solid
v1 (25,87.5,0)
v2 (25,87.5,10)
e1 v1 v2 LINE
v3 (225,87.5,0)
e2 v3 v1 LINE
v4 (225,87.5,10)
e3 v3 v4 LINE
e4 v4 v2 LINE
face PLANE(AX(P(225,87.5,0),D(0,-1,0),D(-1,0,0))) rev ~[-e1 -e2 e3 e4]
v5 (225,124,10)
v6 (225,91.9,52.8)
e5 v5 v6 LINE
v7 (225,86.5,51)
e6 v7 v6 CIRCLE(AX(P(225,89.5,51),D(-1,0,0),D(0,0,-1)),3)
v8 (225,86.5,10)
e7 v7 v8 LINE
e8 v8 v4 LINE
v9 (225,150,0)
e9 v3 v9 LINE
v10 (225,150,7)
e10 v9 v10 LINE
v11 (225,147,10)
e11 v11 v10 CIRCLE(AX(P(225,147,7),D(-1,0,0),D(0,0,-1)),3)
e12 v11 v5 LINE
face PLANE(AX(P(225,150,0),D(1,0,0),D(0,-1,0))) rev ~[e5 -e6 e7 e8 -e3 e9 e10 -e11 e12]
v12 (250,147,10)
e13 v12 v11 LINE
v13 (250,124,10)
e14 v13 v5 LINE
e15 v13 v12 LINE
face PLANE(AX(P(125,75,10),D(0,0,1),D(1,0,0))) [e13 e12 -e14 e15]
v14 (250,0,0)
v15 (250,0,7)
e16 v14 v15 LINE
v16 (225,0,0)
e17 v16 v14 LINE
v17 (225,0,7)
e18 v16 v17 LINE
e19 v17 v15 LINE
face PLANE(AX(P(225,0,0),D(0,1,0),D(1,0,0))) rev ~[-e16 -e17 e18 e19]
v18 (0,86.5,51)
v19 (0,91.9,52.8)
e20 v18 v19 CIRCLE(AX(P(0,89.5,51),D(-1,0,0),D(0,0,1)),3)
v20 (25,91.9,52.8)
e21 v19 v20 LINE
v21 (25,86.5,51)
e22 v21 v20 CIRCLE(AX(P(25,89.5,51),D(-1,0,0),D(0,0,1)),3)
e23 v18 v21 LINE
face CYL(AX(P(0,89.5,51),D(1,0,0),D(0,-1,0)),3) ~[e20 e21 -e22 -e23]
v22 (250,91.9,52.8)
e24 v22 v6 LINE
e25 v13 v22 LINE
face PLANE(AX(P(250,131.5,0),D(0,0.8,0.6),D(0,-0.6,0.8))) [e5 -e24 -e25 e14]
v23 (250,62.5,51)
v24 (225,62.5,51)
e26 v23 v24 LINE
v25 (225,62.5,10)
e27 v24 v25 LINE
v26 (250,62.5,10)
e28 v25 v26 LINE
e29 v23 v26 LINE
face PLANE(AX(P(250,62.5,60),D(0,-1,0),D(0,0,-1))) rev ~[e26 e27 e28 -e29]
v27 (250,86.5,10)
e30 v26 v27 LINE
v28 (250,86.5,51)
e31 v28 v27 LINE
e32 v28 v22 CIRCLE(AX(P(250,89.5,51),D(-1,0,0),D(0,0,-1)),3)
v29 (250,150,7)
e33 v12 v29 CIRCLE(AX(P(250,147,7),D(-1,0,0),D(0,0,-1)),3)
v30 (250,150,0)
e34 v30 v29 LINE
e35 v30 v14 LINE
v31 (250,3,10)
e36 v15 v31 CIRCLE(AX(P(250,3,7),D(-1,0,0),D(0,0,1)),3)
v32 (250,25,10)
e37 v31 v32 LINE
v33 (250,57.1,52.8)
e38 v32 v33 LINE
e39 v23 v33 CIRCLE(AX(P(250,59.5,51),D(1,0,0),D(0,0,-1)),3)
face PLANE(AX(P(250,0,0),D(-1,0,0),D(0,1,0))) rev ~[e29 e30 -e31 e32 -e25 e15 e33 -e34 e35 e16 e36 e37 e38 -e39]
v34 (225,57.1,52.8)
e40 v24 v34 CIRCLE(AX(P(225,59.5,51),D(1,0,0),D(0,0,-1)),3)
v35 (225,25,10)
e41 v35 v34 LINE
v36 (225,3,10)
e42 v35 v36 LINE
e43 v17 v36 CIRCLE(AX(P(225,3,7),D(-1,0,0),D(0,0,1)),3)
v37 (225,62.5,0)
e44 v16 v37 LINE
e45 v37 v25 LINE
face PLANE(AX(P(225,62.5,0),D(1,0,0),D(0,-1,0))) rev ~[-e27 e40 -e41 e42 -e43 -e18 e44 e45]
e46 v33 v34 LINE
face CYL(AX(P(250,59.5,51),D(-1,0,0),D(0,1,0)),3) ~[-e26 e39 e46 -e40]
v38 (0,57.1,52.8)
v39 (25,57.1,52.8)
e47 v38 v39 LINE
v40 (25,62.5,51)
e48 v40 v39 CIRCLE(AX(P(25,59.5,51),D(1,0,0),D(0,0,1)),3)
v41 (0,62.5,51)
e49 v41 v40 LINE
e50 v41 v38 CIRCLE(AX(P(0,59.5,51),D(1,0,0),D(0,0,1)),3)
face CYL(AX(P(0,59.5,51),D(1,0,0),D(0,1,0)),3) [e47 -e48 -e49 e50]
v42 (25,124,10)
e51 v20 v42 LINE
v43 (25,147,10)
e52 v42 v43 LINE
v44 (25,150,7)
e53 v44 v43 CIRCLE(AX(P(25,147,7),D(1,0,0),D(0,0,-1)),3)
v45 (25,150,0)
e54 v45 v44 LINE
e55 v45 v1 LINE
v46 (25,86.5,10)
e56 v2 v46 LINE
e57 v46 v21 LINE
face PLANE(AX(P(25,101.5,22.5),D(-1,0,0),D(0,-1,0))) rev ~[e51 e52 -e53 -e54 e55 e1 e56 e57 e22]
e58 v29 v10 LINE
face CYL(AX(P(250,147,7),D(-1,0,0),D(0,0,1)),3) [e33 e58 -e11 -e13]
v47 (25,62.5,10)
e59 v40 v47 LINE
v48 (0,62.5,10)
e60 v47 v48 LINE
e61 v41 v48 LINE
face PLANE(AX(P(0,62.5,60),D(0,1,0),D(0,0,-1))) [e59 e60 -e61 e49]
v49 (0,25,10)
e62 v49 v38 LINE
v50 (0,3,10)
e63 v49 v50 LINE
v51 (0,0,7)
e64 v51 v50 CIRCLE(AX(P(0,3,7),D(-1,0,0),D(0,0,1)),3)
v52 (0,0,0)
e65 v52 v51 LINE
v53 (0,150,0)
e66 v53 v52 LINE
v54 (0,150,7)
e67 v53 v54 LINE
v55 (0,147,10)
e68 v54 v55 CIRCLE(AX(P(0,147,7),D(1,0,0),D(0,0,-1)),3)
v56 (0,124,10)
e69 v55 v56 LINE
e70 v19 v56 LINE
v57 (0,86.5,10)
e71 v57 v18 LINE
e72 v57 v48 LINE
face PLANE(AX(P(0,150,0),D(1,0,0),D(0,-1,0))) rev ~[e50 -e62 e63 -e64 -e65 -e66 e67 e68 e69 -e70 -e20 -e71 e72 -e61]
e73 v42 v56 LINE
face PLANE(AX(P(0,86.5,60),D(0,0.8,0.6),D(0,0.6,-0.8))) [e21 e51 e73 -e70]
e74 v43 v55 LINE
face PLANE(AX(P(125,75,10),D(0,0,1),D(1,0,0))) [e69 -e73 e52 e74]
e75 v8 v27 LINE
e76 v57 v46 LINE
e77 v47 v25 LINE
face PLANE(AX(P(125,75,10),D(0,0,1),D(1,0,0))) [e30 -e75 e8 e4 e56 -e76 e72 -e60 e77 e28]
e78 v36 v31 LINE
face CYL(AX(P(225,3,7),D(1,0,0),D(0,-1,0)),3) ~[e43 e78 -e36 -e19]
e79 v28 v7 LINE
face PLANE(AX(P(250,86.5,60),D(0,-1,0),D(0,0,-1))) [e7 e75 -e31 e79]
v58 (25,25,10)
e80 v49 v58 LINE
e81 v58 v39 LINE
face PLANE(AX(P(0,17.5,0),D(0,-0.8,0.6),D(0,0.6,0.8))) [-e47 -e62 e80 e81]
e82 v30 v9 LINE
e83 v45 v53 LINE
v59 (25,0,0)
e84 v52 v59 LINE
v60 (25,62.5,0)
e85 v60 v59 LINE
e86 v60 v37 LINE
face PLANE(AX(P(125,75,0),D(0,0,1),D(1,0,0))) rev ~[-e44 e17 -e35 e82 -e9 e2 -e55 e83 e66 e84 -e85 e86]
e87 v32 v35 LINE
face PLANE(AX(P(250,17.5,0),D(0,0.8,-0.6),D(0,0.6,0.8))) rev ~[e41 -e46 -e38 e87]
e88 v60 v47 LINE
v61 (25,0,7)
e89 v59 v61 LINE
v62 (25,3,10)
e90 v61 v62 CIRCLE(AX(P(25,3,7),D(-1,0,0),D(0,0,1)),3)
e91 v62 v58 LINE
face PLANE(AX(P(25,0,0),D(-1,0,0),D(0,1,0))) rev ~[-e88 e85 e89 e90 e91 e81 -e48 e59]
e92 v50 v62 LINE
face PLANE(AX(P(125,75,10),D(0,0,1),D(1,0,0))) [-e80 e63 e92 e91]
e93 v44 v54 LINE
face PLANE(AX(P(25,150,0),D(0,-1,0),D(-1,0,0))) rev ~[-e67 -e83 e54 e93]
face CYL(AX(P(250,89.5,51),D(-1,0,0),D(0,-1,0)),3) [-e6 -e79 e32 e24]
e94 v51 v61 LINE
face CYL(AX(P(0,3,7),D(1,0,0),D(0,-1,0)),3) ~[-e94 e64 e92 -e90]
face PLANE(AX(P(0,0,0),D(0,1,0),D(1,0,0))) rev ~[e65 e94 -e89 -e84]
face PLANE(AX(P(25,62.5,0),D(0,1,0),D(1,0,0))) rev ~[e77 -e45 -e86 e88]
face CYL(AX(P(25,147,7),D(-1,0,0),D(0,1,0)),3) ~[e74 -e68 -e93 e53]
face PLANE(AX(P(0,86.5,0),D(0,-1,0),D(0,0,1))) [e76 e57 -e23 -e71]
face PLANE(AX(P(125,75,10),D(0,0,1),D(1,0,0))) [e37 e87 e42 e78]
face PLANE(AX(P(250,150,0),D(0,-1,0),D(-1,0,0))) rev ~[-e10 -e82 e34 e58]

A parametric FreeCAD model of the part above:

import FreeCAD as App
import Part
import Sketcher
Q = App.Units.Quantity


def edges_at(feature, points):
    """Names of the edges that pass closest to the given points."""
    edges = feature.Shape.Edges
    near = lambda p: min(range(len(edges)), key=lambda i: edges[i].distToShape(Part.Vertex(*p))[0])
    return sorted({f"Edge{near(p) + 1}" for p in points})

doc = App.newDocument("Part")
body = doc.addObject("PartDesign::Body", "Body")

sketch1 = doc.addObject("Sketcher::SketchObject", "Sketch")
body.addObject(sketch1)
sketch1.AttachmentSupport = (doc.XY_Plane, [""])
sketch1.MapMode = "FlatFace"
sketch1.addGeometry([
    Part.LineSegment(App.Vector(0, 0, 0), App.Vector(25, 0, 0)),
    Part.LineSegment(App.Vector(25, 0, 0), App.Vector(25, 62.5, 0)),
    Part.LineSegment(App.Vector(25, 62.5, 0), App.Vector(225, 62.5, 0)),
    Part.LineSegment(App.Vector(225, 62.5, 0), App.Vector(225, 0, 0)),
    Part.LineSegment(App.Vector(225, 0, 0), App.Vector(250, 0, 0)),
    Part.LineSegment(App.Vector(250, 0, 0), App.Vector(250, 150, 0)),
    Part.LineSegment(App.Vector(250, 150, 0), App.Vector(225, 150, 0)),
    Part.LineSegment(App.Vector(225, 150, 0), App.Vector(225, 87.5, 0)),
    Part.LineSegment(App.Vector(225, 87.5, 0), App.Vector(25, 87.5, 0)),
    Part.LineSegment(App.Vector(25, 87.5, 0), App.Vector(25, 150, 0)),
    Part.LineSegment(App.Vector(25, 150, 0), App.Vector(0, 150, 0)),
    Part.LineSegment(App.Vector(0, 150, 0), App.Vector(0, 0, 0)),
], False)
sketch1.addConstraint([
    Sketcher.Constraint("Coincident", 0, 2, 1, 1),
    Sketcher.Constraint("Coincident", 1, 2, 2, 1),
    Sketcher.Constraint("Coincident", 2, 2, 3, 1),
    Sketcher.Constraint("Coincident", 3, 2, 4, 1),
    Sketcher.Constraint("Coincident", 4, 2, 5, 1),
    Sketcher.Constraint("Coincident", 5, 2, 6, 1),
    Sketcher.Constraint("Coincident", 6, 2, 7, 1),
    Sketcher.Constraint("Coincident", 7, 2, 8, 1),
    Sketcher.Constraint("Coincident", 8, 2, 9, 1),
    Sketcher.Constraint("Coincident", 9, 2, 10, 1),
    Sketcher.Constraint("Coincident", 10, 2, 11, 1),
    Sketcher.Constraint("Coincident", 11, 2, 0, 1),
    Sketcher.Constraint("Horizontal", 0),
    Sketcher.Constraint("Vertical", 1),
    Sketcher.Constraint("Horizontal", 2),
    Sketcher.Constraint("Vertical", 3),
    Sketcher.Constraint("Horizontal", 4),
    Sketcher.Constraint("Vertical", 5),
    Sketcher.Constraint("Horizontal", 6),
    Sketcher.Constraint("Vertical", 7),
    Sketcher.Constraint("Horizontal", 8),
    Sketcher.Constraint("Vertical", 9),
    Sketcher.Constraint("Horizontal", 10),
    Sketcher.Constraint("Vertical", 11),
    Sketcher.Constraint("Coincident", 11, 2, -1, 1),
    Sketcher.Constraint("PointOnObject", 3, 2, -1),
    Sketcher.Constraint("Horizontal", 6, 2, 9, 2),
    Sketcher.Constraint("Vertical", 3, 2, 6, 2),
    Sketcher.Constraint("Vertical", 1, 2, 8, 2),
    Sketcher.Constraint("Equal", 0, 4),
    Sketcher.Constraint("Equal", 3, 7),
    Sketcher.Constraint("DistanceX", 0, 1, 0, 2, Q("25 mm")),
    Sketcher.Constraint("DistanceX", 2, 1, 2, 2, Q("200 mm")),
    Sketcher.Constraint("DistanceY", 5, 1, 5, 2, Q("150 mm")),
    Sketcher.Constraint("DistanceY", 1, 1, 1, 2, Q("62.5 mm")),
])
pad1 = doc.addObject("PartDesign::Pad", "Pad")
body.addObject(pad1)
pad1.Profile = sketch1
pad1.Length = 10

sketch2 = doc.addObject("Sketcher::SketchObject", "Sketch001")
body.addObject(sketch2)
sketch2.AttachmentSupport = (doc.YZ_Plane, [""])
sketch2.MapMode = "FlatFace"
sketch2.addGeometry([
    Part.LineSegment(App.Vector(62.5, 60, 0), App.Vector(17.5, 0, 0)),
    Part.LineSegment(App.Vector(17.5, 0, 0), App.Vector(62.5, 0, 0)),
    Part.LineSegment(App.Vector(62.5, 0, 0), App.Vector(62.5, 60, 0)),
    Part.LineSegment(App.Vector(86.5, 60, 0), App.Vector(86.5, 0, 0)),
    Part.LineSegment(App.Vector(86.5, 0, 0), App.Vector(131.5, 0, 0)),
    Part.LineSegment(App.Vector(131.5, 0, 0), App.Vector(86.5, 60, 0)),
], False)
sketch2.addConstraint([
    Sketcher.Constraint("Coincident", 0, 2, 1, 1),
    Sketcher.Constraint("Coincident", 1, 2, 2, 1),
    Sketcher.Constraint("Coincident", 2, 2, 0, 1),
    Sketcher.Constraint("Coincident", 3, 2, 4, 1),
    Sketcher.Constraint("Coincident", 4, 2, 5, 1),
    Sketcher.Constraint("Coincident", 5, 2, 3, 1),
    Sketcher.Constraint("Horizontal", 1),
    Sketcher.Constraint("Vertical", 2),
    Sketcher.Constraint("Vertical", 3),
    Sketcher.Constraint("Horizontal", 4),
    Sketcher.Constraint("PointOnObject", 0, 2, -1),
    Sketcher.Constraint("PointOnObject", 3, 2, -1),
    Sketcher.Constraint("Horizontal", 2, 2, 5, 2),
    Sketcher.Constraint("Equal", 1, 4),
    Sketcher.Constraint("DistanceX", 1, 1, 1, 2, Q("45 mm")),
    Sketcher.Constraint("DistanceY", 2, 1, 2, 2, Q("60 mm")),
    Sketcher.Constraint("DistanceX", 1, 2, 3, 2, Q("24 mm")),
    Sketcher.Constraint("DistanceX", -1, 1, 0, 2, Q("17.5 mm")),
])
pad2 = doc.addObject("PartDesign::Pad", "Pad001")
body.addObject(pad2)
pad2.Profile = sketch2
pad2.Length = 25

sketch3 = doc.addObject("Sketcher::SketchObject", "Sketch002")
body.addObject(sketch3)
sketch3.AttachmentSupport = (doc.YZ_Plane, [""])
sketch3.MapMode = "FlatFace"
sketch3.AttachmentOffset = App.Placement(App.Vector(0, 0, 250), App.Rotation())
sketch3.addGeometry([
    Part.LineSegment(App.Vector(62.5, 60, 0), App.Vector(17.5, 0, 0)),
    Part.LineSegment(App.Vector(17.5, 0, 0), App.Vector(62.5, 0, 0)),
    Part.LineSegment(App.Vector(62.5, 0, 0), App.Vector(62.5, 60, 0)),
    Part.LineSegment(App.Vector(86.5, 60, 0), App.Vector(86.5, 0, 0)),
    Part.LineSegment(App.Vector(86.5, 0, 0), App.Vector(131.5, 0, 0)),
    Part.LineSegment(App.Vector(131.5, 0, 0), App.Vector(86.5, 60, 0)),
], False)
sketch3.addConstraint([
    Sketcher.Constraint("Coincident", 0, 2, 1, 1),
    Sketcher.Constraint("Coincident", 1, 2, 2, 1),
    Sketcher.Constraint("Coincident", 2, 2, 0, 1),
    Sketcher.Constraint("Coincident", 3, 2, 4, 1),
    Sketcher.Constraint("Coincident", 4, 2, 5, 1),
    Sketcher.Constraint("Coincident", 5, 2, 3, 1),
    Sketcher.Constraint("Horizontal", 1),
    Sketcher.Constraint("Vertical", 2),
    Sketcher.Constraint("Vertical", 3),
    Sketcher.Constraint("Horizontal", 4),
    Sketcher.Constraint("PointOnObject", 0, 2, -1),
    Sketcher.Constraint("PointOnObject", 3, 2, -1),
    Sketcher.Constraint("Horizontal", 2, 2, 5, 2),
    Sketcher.Constraint("Equal", 1, 4),
    Sketcher.Constraint("DistanceX", 1, 1, 1, 2, Q("45 mm")),
    Sketcher.Constraint("DistanceY", 2, 1, 2, 2, Q("60 mm")),
    Sketcher.Constraint("DistanceX", 1, 2, 3, 2, Q("24 mm")),
    Sketcher.Constraint("DistanceX", -1, 1, 0, 2, Q("17.5 mm")),
])
pad3 = doc.addObject("PartDesign::Pad", "Pad002")
body.addObject(pad3)
pad3.Profile = sketch3
pad3.Length = 25
pad3.Reversed = True
doc.recompute()

fillet = doc.addObject("PartDesign::Fillet", "Fillet")
body.addObject(fillet)
fillet.Base = (pad3, edges_at(pad3, [(237.5, 150, 10)]))
fillet.Radius = 3
doc.recompute()

fillet2 = doc.addObject("PartDesign::Fillet", "Fillet001")
body.addObject(fillet2)
fillet2.Base = (fillet, edges_at(fillet, [(12.5, 150, 10)]))
fillet2.Radius = 3
doc.recompute()

fillet3 = doc.addObject("PartDesign::Fillet", "Fillet002")
body.addObject(fillet3)
fillet3.Base = (fillet2, edges_at(fillet2, [(237.5, 0, 10)]))
fillet3.Radius = 3
doc.recompute()

fillet4 = doc.addObject("PartDesign::Fillet", "Fillet003")
body.addObject(fillet4)
fillet4.Base = (fillet3, edges_at(fillet3, [(12.5, 0, 10)]))
fillet4.Radius = 3
doc.recompute()

fillet5 = doc.addObject("PartDesign::Fillet", "Fillet004")
body.addObject(fillet5)
fillet5.Base = (fillet4, edges_at(fillet4, [(237.5, 86.5, 60)]))
fillet5.Radius = 3
doc.recompute()

fillet6 = doc.addObject("PartDesign::Fillet", "Fillet005")
body.addObject(fillet6)
fillet6.Base = (fillet5, edges_at(fillet5, [(237.5, 62.5, 60)]))
fillet6.Radius = 3
doc.recompute()

fillet7 = doc.addObject("PartDesign::Fillet", "Fillet006")
body.addObject(fillet7)
fillet7.Base = (fillet6, edges_at(fillet6, [(12.5, 86.5, 60)]))
fillet7.Radius = 3
doc.recompute()

fillet8 = doc.addObject("PartDesign::Fillet", "Fillet007")
body.addObject(fillet8)
fillet8.Base = (fillet7, edges_at(fillet7, [(12.5, 62.5, 60)]))
fillet8.Radius = 3

doc.recompute()
